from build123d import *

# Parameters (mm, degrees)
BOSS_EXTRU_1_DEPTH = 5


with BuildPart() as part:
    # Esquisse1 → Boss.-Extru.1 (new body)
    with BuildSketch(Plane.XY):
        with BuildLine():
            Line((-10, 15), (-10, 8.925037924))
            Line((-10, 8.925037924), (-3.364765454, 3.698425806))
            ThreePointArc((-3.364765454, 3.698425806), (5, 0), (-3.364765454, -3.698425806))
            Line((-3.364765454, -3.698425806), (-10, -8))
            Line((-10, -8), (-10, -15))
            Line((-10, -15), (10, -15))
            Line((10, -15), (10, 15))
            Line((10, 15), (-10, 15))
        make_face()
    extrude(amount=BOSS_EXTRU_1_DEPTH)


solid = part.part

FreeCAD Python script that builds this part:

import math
import FreeCAD as App
import Part
import Sketcher

V = App.Vector

doc = App.newDocument("Part")
params = doc.addObject("Spreadsheet::Sheet", "Params")
for row, (alias, value) in enumerate([
    ("sketch1_radius", "5 mm"),
    ("sketch1_width", "20 mm"),
    ("sketch1_height", "7 mm"),
    ("sketch1_height2", "30 mm"),
    ("pad1_length", "5 mm"),
], start=1):
    params.set(f"A{row}", alias)
    params.set(f"B{row}", "=" + value)
    params.setAlias(f"B{row}", alias)

body = doc.addObject("PartDesign::Body", "Body")

# Sketch on XY plane
sketch1 = body.newObject("Sketcher::SketchObject", "Sketch")
sketch1.AttachmentSupport = (doc.getObject("XY_Plane"), [""])
sketch1.MapMode = "FlatFace"
sketch1.addGeometry([
    Part.LineSegment(V(-10, 15, 0), V(-10, 8.925038, 0)),  # 0
    Part.LineSegment(V(-10, 8.925038, 0), V(-3.364765, 3.698426, 0)),  # 1
    Part.ArcOfCircle(Part.Circle(V(0, 0, 0), V(0, 0, 1), 5), math.radians(-132.295397), math.radians(132.295397)),  # 2
    Part.LineSegment(V(-3.364765, -3.698426, 0), V(-10, -8, 0)),  # 3
    Part.LineSegment(V(-10, -8, 0), V(-10, -15, 0)),  # 4
    Part.LineSegment(V(-10, -15, 0), V(10, -15, 0)),  # 5
    Part.LineSegment(V(10, -15, 0), V(10, 15, 0)),  # 6
    Part.LineSegment(V(10, 15, 0), V(-10, 15, 0)),  # 7
], False)
sketch1.addConstraint([
    Sketcher.Constraint("Coincident", 0, 2, 1, 1),
    Sketcher.Constraint("Coincident", 1, 2, 2, 2),
    Sketcher.Constraint("Coincident", 2, 1, 3, 1),
    Sketcher.Constraint("Coincident", 3, 2, 4, 1),
    Sketcher.Constraint("Coincident", 4, 2, 5, 1),
    Sketcher.Constraint("Coincident", 5, 2, 6, 1),
    Sketcher.Constraint("Coincident", 6, 2, 7, 1),
    Sketcher.Constraint("Coincident", 7, 2, 0, 1),
    Sketcher.Constraint("Vertical", 0),
    Sketcher.Constraint("Vertical", 4),
    Sketcher.Constraint("Horizontal", 5),
    Sketcher.Constraint("Vertical", 6),
    Sketcher.Constraint("Horizontal", 7),
    Sketcher.Constraint("Coincident", 2, 3, -1, 1),
    Sketcher.Constraint("Symmetric", 4, 2, 6, 2, -1, 1),
    Sketcher.Constraint("Vertical", 1, 2, 2, 1),
    Sketcher.Constraint("Vertical", 0, 2, 3, 2),
    Sketcher.Constraint("Radius", 2, 5.0),
    Sketcher.Constraint("DistanceX", 5, 1, 5, 2, 20.0),
    Sketcher.Constraint("DistanceY", 4, 2, 4, 1, 7.0),
    Sketcher.Constraint("DistanceY", 6, 1, 6, 2, 30.0),
    Sketcher.Constraint("DistanceY", 0, 2, 0, 1, 6.074962),
    Sketcher.Constraint("DistanceY", 2, 1, 1, 2, 7.396852),
])
sketch1.setExpression("Constraints[17]", "Params.sketch1_radius")
sketch1.setExpression("Constraints[18]", "Params.sketch1_width")
sketch1.setExpression("Constraints[19]", "Params.sketch1_height")
sketch1.setExpression("Constraints[20]", "Params.sketch1_height2")
pad1 = body.newObject("PartDesign::Pad", "Pad")
pad1.Profile = sketch1
pad1.setExpression("Length", "Params.pad1_length")

doc.recompute()
